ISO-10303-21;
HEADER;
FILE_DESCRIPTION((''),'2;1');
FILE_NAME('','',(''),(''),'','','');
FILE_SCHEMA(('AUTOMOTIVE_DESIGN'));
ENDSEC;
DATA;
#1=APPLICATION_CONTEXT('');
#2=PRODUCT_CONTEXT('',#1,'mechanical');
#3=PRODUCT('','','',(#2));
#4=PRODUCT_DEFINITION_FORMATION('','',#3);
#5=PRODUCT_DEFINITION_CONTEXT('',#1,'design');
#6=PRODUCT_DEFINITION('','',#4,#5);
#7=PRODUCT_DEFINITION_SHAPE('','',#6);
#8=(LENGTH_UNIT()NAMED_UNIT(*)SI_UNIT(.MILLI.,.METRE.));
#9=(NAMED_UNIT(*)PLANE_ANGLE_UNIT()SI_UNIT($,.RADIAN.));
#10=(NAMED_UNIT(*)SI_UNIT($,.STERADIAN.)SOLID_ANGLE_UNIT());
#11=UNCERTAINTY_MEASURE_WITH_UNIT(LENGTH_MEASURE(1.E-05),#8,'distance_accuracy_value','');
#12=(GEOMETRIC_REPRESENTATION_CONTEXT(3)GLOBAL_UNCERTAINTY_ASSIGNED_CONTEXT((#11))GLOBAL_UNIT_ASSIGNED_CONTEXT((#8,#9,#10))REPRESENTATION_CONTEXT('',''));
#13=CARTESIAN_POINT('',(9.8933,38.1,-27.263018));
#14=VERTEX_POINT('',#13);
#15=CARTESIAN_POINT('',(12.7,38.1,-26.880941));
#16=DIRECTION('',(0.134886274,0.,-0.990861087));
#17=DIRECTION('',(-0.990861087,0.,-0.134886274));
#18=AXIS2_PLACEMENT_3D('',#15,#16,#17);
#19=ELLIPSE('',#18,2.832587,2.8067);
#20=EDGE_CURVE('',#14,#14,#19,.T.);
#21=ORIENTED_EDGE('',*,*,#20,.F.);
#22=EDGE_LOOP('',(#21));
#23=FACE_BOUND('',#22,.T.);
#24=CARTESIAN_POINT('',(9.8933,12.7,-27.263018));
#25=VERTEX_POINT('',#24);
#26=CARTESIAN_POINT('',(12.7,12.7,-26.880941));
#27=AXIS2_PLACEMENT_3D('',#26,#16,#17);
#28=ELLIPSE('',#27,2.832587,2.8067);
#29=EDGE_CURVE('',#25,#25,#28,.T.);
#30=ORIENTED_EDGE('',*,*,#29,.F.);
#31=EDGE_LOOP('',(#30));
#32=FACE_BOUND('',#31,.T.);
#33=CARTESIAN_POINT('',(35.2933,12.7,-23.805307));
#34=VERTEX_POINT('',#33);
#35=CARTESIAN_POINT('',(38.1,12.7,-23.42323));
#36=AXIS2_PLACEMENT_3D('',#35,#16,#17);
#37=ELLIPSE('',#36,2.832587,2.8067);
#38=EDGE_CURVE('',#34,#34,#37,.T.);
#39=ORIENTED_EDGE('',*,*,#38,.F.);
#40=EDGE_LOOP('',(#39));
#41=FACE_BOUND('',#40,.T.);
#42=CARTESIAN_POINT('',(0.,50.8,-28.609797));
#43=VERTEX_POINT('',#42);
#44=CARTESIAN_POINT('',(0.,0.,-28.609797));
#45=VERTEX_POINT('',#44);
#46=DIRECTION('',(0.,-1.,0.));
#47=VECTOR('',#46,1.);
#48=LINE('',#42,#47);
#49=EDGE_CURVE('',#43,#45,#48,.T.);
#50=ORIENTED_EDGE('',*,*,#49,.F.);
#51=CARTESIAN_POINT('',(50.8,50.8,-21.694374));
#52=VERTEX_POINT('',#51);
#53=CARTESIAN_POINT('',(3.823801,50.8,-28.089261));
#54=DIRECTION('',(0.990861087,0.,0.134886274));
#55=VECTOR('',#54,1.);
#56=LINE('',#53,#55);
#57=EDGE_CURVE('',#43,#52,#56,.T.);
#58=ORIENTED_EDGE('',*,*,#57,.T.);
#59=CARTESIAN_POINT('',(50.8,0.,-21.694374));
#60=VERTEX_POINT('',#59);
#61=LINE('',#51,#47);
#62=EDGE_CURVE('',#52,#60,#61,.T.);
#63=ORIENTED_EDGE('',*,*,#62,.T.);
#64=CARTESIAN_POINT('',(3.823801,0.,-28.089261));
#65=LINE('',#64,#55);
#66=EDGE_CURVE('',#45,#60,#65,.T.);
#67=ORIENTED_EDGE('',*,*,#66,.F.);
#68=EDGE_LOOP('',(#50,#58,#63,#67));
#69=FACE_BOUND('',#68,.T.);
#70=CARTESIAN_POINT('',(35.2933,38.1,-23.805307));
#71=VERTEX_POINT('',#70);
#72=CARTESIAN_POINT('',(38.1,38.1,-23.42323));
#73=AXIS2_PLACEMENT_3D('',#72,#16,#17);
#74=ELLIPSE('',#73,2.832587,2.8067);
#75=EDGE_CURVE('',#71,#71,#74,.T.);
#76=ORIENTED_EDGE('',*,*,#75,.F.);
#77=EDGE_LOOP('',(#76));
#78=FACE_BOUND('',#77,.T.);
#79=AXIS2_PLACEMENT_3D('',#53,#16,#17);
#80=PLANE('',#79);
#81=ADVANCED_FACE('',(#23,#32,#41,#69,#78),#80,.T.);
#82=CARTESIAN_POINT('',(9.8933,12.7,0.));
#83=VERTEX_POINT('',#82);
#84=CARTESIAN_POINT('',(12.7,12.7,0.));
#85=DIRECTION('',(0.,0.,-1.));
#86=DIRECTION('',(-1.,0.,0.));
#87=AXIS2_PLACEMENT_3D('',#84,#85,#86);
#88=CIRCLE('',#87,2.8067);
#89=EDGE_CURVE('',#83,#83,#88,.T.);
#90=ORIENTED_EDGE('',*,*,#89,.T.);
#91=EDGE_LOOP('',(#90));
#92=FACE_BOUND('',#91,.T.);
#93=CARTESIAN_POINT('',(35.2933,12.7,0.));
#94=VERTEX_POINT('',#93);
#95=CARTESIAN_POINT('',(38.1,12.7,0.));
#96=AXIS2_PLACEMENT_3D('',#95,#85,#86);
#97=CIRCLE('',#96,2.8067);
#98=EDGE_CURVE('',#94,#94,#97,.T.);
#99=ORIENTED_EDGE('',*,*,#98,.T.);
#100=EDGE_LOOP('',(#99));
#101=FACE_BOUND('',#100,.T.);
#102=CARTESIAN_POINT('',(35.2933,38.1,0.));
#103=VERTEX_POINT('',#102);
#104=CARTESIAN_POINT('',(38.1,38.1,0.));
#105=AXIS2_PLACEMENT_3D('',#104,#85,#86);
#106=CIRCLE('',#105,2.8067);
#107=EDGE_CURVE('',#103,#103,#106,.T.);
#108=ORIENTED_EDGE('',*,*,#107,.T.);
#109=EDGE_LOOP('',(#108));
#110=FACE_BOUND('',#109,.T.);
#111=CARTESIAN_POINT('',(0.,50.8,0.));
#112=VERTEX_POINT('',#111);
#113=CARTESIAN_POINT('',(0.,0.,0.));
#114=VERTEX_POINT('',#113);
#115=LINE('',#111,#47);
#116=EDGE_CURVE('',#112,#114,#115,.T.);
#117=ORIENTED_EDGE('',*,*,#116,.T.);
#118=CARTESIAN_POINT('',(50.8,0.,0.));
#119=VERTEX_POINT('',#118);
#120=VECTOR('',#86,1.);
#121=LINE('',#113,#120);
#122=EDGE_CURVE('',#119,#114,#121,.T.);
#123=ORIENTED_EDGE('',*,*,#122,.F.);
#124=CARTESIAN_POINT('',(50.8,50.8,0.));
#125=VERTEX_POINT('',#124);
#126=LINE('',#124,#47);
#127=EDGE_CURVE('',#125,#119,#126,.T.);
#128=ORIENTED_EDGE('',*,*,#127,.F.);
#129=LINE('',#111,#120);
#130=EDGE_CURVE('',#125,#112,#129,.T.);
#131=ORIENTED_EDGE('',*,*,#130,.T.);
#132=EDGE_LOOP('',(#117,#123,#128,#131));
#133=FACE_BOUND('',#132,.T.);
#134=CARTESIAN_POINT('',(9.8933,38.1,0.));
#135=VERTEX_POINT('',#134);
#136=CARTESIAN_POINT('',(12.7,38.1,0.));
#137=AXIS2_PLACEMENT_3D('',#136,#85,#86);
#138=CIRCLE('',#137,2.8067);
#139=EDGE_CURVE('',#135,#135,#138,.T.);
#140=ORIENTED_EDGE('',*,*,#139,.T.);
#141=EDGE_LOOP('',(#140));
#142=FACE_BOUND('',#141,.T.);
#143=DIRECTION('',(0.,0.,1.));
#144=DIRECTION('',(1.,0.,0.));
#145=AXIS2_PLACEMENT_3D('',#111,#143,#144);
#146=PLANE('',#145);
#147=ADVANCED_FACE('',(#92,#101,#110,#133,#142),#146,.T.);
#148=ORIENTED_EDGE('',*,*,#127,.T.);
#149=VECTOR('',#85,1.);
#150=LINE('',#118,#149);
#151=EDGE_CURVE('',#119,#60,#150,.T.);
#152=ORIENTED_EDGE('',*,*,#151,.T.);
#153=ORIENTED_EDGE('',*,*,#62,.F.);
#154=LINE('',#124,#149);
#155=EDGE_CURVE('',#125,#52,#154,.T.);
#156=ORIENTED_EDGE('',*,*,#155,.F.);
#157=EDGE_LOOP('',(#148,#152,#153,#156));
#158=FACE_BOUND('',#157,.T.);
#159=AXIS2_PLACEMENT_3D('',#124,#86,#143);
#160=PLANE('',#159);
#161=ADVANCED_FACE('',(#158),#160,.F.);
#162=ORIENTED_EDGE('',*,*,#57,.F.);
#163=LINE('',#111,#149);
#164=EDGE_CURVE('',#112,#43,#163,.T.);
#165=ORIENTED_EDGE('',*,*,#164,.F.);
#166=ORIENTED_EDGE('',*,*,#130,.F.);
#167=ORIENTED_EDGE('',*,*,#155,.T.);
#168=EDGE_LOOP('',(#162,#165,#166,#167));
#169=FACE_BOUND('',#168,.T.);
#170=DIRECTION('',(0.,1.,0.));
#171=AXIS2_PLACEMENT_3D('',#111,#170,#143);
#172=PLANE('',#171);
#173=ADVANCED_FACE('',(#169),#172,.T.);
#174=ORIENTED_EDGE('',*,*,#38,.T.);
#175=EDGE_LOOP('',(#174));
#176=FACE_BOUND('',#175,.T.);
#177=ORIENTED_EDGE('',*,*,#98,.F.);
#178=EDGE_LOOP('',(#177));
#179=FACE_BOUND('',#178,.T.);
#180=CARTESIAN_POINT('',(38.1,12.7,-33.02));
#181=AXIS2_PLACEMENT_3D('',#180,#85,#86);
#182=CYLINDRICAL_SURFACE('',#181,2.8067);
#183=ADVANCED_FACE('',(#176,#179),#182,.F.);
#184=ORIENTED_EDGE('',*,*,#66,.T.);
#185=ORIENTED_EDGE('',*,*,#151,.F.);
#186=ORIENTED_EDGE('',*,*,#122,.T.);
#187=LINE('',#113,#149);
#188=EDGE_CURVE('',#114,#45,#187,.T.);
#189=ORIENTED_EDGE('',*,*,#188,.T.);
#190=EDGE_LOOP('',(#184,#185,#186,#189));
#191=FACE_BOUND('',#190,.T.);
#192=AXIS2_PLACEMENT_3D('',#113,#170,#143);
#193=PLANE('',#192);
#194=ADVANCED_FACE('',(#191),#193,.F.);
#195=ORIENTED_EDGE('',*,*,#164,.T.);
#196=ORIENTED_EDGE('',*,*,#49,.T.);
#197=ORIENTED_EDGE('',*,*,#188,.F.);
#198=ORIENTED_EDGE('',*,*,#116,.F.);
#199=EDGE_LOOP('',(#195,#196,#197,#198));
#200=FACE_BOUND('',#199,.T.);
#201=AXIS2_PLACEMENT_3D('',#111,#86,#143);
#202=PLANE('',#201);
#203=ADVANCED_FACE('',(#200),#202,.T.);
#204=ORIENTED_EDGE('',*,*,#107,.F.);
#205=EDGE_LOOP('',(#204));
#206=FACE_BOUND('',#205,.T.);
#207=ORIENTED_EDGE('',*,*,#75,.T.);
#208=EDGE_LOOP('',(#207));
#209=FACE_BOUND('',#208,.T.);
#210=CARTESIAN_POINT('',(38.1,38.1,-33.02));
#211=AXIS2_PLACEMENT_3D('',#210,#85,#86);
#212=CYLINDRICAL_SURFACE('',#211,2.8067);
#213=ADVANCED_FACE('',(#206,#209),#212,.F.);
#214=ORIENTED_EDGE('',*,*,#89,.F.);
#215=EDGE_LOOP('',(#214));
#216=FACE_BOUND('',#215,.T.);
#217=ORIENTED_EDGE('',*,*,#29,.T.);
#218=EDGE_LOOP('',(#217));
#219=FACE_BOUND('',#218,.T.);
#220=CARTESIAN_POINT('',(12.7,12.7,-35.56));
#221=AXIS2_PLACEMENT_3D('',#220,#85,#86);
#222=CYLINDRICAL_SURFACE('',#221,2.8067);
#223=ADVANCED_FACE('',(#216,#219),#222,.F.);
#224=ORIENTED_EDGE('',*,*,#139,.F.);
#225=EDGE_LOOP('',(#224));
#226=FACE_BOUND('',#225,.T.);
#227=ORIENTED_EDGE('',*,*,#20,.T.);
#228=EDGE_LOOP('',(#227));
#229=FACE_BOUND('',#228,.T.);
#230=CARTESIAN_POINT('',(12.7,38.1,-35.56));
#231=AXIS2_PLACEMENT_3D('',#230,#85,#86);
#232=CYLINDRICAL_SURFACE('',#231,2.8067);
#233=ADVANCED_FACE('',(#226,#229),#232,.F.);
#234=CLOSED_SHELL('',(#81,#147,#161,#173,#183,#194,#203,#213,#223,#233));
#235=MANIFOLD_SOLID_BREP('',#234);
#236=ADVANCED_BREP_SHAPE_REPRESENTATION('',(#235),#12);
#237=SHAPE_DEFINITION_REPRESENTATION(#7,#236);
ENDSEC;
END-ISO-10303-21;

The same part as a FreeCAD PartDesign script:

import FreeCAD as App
import Part
import Sketcher
from FreeCAD import Vector
Q = App.Units.Quantity

doc = App.newDocument("Part")
params = doc.addObject("Spreadsheet::Sheet", "Params")
for row, (alias, value) in enumerate([
    ("sketch1_width", "2 in"),
    ("pad1_length", "2 in"),
    ("sketch2_diameter", "0.221 in"),
    ("hole_diameter", "0.221 in"),
    ("hole_csink_diameter", "0.7 in"),
    ("sketch3_diameter", "0.221 in"),
    ("hole2_diameter", "0.221 in"),
    ("hole2_csink_diameter", "0.7 in"),
], start=1):
    params.set(f"A{row}", alias)
    params.set(f"B{row}", "=" + value)
    params.setAlias(f"B{row}", alias)

body = doc.addObject("PartDesign::Body", "Body")

# Sketch on XZ plane
sketch1 = doc.addObject("Sketcher::SketchObject", "Sketch")
body.addObject(sketch1)
sketch1.AttachmentSupport = (doc.XZ_Plane, [""])
sketch1.MapMode = "FlatFace"
sketch1.addGeometry([
    Part.LineSegment(Vector(0, 0, 0), Vector(50.8, 0, 0)),
    Part.LineSegment(Vector(50.8, 0, 0), Vector(50.8, -21.694374, 0)),
    Part.LineSegment(Vector(50.8, -21.694374, 0), Vector(0, -28.609797, 0)),
    Part.LineSegment(Vector(0, -28.609797, 0), Vector(0, 0, 0)),
], False)
sketch1.addConstraint([
    Sketcher.Constraint("Coincident", 0, 2, 1, 1),
    Sketcher.Constraint("Coincident", 1, 2, 2, 1),
    Sketcher.Constraint("Coincident", 2, 2, 3, 1),
    Sketcher.Constraint("Coincident", 3, 2, 0, 1),
    Sketcher.Constraint("Horizontal", 0),
    Sketcher.Constraint("Vertical", 1),
    Sketcher.Constraint("Vertical", 3),
    Sketcher.Constraint("Coincident", 3, 2, -1, 1),
    Sketcher.Constraint("DistanceX", 0, 1, 0, 2, Q("2 in")),
    Sketcher.Constraint("Distance", 2, 51.268539),
    Sketcher.Constraint("DistanceY", 1, 2, 1, 1, 21.694374),
])
sketch1.setExpression("Constraints[8]", "Params.sketch1_width")
pad1 = doc.addObject("PartDesign::Pad", "Pad")
body.addObject(pad1)
pad1.Profile = sketch1
pad1.setExpression("Length", "Params.pad1_length")
pad1.Reversed = True

# Sketch on XY plane
sketch2 = doc.addObject("Sketcher::SketchObject", "Sketch001")
body.addObject(sketch2)
sketch2.AttachmentSupport = (doc.XY_Plane, [""])
sketch2.MapMode = "FlatFace"
sketch2.AttachmentOffset = App.Placement(Vector(0, 0, -1.4 * 25.4), App.Rotation())
sketch2.addGeometry([
    Part.Circle(Vector(12.700118, -88.9, 0), Vector(0, 0, 1), 2.8067),
    Part.Circle(Vector(12.700118, -63.5, 0), Vector(0, 0, 1), 2.8067),
    Part.Circle(Vector(12.7, 12.7, 0), Vector(0, 0, 1), 2.8067),
    Part.Circle(Vector(12.7, 38.1, 0), Vector(0, 0, 1), 2.8067),
], False)
sketch2.addConstraint([
    Sketcher.Constraint("Equal", 0, 1),
    Sketcher.Constraint("Equal", 1, 2),
    Sketcher.Constraint("Equal", 2, 3),
    Sketcher.Constraint("Vertical", 0, 3, 1, 3),
    Sketcher.Constraint("Vertical", 2, 3, 3, 3),
    Sketcher.Constraint("Diameter", 0, Q("0.221 in")),
    Sketcher.Constraint("DistanceY", 0, 3, 1, 3, Q("1 in")),
    Sketcher.Constraint("DistanceY", 1, 3, 2, 3, Q("3 in")),
    Sketcher.Constraint("DistanceY", 2, 3, 3, 3, Q("1 in")),
    Sketcher.Constraint("DistanceY", 0, 3, -1, 1, Q("3.5 in")),
    Sketcher.Constraint("DistanceX", -1, 1, 2, 3, Q("0.5 in")),
    Sketcher.Constraint("DistanceX", -1, 1, 0, 3, 12.700118),
])
sketch2.setExpression("Constraints[5]", "Params.sketch2_diameter")
doc.recompute()
hole = doc.addObject("PartDesign::Hole", "Hole")
body.addObject(hole)
hole.Profile = sketch2
hole.ThreadType = "None"
hole.setExpression("Diameter", "Params.hole_diameter")
hole.DepthType = "ThroughAll"
hole.HoleCutType = "Countersink"
hole.setExpression("HoleCutDiameter", "Params.hole_csink_diameter")
hole.HoleCutCountersinkAngle = 90
hole.Reversed = True

# Sketch on XY plane
sketch3 = doc.addObject("Sketcher::SketchObject", "Sketch002")
body.addObject(sketch3)
sketch3.AttachmentSupport = (doc.XY_Plane, [""])
sketch3.MapMode = "FlatFace"
sketch3.AttachmentOffset = App.Placement(Vector(0, 0, -1.3 * 25.4), App.Rotation())
sketch3.addGeometry([
    Part.Circle(Vector(38.100118, -88.9, 0), Vector(0, 0, 1), 2.8067),
    Part.Circle(Vector(38.100118, -63.5, 0), Vector(0, 0, 1), 2.8067),
    Part.Circle(Vector(38.1, 12.7, 0), Vector(0, 0, 1), 2.8067),
    Part.Circle(Vector(38.1, 38.1, 0), Vector(0, 0, 1), 2.8067),
], False)
sketch3.addConstraint([
    Sketcher.Constraint("Equal", 0, 1),
    Sketcher.Constraint("Equal", 1, 2),
    Sketcher.Constraint("Equal", 2, 3),
    Sketcher.Constraint("Vertical", 0, 3, 1, 3),
    Sketcher.Constraint("Vertical", 2, 3, 3, 3),
    Sketcher.Constraint("Diameter", 0, Q("0.221 in")),
    Sketcher.Constraint("DistanceY", 0, 3, 1, 3, Q("1 in")),
    Sketcher.Constraint("DistanceY", 1, 3, 2, 3, Q("3 in")),
    Sketcher.Constraint("DistanceY", 2, 3, 3, 3, Q("1 in")),
    Sketcher.Constraint("DistanceY", 0, 3, -1, 1, Q("3.5 in")),
    Sketcher.Constraint("DistanceX", -1, 1, 2, 3, Q("1.5 in")),
    Sketcher.Constraint("DistanceX", -1, 1, 0, 3, 38.100118),
])
sketch3.setExpression("Constraints[5]", "Params.sketch3_diameter")
doc.recompute()
hole2 = doc.addObject("PartDesign::Hole", "Hole001")
body.addObject(hole2)
hole2.Profile = sketch3
hole2.ThreadType = "None"
hole2.setExpression("Diameter", "Params.hole2_diameter")
hole2.DepthType = "ThroughAll"
hole2.HoleCutType = "Countersink"
hole2.setExpression("HoleCutDiameter", "Params.hole2_csink_diameter")
hole2.HoleCutCountersinkAngle = 90
hole2.Reversed = True

doc.recompute()
